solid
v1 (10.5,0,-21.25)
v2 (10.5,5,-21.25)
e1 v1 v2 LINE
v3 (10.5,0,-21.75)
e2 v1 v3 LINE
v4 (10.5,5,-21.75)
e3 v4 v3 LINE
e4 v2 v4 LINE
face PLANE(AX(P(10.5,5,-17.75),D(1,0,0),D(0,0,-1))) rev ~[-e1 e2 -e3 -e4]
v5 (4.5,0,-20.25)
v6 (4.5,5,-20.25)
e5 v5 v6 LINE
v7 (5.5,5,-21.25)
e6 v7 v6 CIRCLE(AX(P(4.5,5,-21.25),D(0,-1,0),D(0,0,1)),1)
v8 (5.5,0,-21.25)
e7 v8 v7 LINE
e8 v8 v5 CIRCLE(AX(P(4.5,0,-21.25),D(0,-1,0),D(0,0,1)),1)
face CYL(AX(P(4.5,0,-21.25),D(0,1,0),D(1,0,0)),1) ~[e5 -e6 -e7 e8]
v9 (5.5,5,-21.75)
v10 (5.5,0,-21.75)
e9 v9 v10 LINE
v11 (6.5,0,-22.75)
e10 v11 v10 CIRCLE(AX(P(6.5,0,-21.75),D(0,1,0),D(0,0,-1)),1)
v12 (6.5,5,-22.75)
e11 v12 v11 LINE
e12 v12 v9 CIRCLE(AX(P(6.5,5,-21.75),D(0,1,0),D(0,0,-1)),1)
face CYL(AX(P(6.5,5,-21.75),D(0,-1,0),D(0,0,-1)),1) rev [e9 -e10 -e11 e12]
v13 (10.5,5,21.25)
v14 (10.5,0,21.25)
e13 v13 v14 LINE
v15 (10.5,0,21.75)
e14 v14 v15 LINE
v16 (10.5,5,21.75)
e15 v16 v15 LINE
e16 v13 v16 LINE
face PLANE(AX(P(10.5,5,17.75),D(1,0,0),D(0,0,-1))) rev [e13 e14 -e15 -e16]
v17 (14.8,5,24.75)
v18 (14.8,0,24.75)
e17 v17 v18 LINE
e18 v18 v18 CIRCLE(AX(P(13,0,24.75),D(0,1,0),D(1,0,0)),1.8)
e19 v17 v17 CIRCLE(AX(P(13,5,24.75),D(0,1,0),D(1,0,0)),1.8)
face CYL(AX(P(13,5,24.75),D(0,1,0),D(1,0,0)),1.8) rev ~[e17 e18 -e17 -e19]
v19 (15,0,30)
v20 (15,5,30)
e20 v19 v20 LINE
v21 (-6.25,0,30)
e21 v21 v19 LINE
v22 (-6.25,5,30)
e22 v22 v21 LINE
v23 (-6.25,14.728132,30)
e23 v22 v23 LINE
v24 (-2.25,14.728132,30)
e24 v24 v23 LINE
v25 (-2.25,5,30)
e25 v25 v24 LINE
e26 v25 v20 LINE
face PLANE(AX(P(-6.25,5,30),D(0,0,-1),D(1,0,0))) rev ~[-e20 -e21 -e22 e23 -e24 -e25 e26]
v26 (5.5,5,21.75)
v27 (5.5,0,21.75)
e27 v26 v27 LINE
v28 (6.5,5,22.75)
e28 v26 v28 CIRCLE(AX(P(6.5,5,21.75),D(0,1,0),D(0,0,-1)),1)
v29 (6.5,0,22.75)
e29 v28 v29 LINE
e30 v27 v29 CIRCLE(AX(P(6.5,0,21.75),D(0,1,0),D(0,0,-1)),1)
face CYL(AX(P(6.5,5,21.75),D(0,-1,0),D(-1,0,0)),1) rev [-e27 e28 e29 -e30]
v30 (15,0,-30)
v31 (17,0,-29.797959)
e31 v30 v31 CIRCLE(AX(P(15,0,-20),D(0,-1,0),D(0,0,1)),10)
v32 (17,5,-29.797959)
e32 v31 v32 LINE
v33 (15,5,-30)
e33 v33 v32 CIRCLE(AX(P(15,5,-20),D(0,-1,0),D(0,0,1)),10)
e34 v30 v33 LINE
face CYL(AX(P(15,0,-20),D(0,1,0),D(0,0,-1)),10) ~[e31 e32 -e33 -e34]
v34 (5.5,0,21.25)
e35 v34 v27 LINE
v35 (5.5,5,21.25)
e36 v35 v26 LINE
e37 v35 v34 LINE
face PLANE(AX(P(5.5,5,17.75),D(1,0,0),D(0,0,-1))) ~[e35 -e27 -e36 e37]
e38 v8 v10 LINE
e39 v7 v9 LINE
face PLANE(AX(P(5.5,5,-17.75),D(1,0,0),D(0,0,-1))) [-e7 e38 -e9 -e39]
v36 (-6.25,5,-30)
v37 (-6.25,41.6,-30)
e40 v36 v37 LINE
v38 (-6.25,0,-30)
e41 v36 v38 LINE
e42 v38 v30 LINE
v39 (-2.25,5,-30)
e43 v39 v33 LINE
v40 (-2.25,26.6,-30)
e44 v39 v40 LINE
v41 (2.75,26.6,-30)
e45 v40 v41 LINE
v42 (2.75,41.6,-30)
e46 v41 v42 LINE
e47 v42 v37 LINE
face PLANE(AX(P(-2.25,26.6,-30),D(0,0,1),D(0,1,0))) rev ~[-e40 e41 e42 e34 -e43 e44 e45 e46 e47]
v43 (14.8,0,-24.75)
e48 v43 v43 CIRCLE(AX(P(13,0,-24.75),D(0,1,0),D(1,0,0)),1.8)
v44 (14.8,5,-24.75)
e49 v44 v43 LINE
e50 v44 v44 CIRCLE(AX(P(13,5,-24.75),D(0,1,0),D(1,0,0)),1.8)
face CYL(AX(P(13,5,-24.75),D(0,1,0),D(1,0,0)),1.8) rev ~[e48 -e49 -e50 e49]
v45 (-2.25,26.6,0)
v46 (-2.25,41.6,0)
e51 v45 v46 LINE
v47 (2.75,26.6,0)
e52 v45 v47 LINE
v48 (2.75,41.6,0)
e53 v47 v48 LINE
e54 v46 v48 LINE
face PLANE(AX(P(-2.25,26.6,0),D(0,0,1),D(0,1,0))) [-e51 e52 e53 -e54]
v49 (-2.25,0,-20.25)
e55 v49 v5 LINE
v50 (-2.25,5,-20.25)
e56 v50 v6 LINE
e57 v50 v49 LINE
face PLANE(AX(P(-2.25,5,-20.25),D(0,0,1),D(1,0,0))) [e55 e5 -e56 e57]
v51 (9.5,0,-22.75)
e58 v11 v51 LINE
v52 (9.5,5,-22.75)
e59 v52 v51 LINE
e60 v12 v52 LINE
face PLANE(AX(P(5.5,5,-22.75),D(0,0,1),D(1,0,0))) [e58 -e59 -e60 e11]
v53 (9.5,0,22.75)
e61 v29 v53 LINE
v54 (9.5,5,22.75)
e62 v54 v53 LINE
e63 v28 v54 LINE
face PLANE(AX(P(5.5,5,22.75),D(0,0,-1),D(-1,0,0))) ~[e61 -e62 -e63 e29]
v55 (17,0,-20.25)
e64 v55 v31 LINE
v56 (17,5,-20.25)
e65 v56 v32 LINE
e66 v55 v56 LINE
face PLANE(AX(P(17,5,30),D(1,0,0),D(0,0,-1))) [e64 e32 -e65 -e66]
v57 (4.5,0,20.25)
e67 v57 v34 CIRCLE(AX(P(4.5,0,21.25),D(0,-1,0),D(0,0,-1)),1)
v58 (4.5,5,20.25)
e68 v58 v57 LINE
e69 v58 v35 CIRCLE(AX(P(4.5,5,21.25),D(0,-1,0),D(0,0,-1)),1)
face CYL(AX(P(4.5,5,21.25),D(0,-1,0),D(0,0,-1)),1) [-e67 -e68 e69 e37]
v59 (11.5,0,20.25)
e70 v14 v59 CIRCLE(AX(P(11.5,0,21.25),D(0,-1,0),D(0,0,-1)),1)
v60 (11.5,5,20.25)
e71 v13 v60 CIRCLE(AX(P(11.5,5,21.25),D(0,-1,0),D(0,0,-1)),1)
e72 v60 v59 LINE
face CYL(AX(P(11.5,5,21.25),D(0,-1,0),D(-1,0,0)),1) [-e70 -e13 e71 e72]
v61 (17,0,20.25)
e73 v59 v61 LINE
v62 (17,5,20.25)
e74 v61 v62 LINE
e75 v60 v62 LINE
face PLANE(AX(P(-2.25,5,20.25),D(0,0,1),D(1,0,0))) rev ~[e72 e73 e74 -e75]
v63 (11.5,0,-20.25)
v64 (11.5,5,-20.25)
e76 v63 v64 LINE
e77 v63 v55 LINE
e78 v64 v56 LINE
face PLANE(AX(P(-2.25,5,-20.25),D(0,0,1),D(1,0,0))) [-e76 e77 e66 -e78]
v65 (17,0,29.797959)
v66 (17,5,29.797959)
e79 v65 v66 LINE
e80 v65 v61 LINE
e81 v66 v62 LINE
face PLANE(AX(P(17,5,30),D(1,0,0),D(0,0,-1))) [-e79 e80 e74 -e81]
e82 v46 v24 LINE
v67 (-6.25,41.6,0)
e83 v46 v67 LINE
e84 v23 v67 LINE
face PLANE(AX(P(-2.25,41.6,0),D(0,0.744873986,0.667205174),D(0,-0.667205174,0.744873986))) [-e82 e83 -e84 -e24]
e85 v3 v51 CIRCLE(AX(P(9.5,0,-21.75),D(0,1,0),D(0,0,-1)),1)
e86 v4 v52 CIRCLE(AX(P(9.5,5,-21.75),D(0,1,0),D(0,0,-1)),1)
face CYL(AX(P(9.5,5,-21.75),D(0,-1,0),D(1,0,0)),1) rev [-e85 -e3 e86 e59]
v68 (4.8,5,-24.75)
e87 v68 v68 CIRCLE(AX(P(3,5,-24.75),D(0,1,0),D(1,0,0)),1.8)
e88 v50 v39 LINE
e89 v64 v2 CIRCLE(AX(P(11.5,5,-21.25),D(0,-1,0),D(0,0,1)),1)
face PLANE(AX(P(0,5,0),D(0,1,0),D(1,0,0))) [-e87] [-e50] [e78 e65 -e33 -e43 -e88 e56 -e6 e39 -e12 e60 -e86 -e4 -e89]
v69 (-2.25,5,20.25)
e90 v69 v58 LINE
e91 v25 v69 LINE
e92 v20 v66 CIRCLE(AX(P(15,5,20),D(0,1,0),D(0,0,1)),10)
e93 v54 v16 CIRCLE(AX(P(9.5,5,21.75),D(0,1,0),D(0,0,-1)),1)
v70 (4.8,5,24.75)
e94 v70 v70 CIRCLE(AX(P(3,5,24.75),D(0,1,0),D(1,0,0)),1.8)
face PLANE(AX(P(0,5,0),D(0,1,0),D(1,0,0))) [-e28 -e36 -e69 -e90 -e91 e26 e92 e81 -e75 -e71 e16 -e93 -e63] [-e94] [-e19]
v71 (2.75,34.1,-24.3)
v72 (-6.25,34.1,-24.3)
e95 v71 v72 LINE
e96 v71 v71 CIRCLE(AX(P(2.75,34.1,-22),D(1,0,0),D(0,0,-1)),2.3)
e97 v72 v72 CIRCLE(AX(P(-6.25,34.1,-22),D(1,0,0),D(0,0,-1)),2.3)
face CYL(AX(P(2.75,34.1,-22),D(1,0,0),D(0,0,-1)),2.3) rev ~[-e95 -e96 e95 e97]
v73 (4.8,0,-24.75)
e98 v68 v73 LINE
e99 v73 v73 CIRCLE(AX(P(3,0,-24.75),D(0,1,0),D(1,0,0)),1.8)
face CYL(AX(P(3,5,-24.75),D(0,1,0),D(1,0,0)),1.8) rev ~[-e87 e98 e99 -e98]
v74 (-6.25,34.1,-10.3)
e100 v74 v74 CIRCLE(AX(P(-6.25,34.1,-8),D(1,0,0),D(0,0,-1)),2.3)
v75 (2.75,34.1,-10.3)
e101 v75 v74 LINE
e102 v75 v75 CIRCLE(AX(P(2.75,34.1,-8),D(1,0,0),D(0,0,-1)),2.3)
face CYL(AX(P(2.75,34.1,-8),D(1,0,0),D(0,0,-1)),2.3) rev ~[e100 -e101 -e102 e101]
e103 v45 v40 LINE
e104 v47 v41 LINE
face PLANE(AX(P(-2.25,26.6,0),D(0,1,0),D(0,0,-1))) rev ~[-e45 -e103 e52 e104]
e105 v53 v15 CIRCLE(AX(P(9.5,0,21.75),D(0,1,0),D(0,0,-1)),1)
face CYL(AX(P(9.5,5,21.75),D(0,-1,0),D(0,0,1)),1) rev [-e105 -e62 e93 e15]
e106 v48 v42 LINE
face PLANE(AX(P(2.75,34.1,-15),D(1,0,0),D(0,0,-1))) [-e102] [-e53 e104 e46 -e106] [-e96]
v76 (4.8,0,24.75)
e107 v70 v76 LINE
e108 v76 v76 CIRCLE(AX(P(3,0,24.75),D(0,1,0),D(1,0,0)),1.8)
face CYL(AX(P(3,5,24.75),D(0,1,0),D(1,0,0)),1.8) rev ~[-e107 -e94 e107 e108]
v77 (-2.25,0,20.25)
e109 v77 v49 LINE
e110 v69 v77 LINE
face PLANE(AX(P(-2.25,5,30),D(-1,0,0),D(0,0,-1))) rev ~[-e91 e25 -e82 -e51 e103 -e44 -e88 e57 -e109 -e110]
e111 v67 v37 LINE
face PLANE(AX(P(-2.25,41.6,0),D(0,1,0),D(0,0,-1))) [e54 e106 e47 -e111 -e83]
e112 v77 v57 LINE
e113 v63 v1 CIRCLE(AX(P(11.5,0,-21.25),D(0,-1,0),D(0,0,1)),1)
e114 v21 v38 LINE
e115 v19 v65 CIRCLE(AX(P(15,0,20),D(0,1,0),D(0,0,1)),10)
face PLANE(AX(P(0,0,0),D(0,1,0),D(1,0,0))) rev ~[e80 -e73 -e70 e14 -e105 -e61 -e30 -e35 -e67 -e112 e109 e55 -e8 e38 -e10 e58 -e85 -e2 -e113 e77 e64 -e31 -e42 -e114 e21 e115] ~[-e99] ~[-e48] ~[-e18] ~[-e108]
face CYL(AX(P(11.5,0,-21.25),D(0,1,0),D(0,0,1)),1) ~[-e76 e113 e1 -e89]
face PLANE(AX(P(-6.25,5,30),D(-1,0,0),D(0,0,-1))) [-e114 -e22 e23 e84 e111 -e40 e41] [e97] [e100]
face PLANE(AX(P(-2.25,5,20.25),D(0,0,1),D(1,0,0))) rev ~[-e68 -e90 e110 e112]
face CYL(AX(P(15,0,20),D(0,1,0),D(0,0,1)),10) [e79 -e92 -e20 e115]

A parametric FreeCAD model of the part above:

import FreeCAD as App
import Part
import Sketcher
from FreeCAD import Vector
Q = App.Units.Quantity


def edges_at(feature, points):
    """Names of the edges that pass closest to the given points."""
    edges = feature.Shape.Edges
    near = lambda p: min(range(len(edges)), key=lambda i: edges[i].distToShape(Part.Vertex(*p))[0])
    return sorted({f"Edge{near(p) + 1}" for p in points})


def add_polygon(sketch, points):
    """Adds a closed chain of lines whose ends are joined by coincident constraints."""
    first, n = sketch.GeometryCount, len(points)
    for a, b in zip(points, points[1:] + points[:1]):
        sketch.addGeometry(Part.LineSegment(App.Vector(*a, 0), App.Vector(*b, 0)), False)
    for i in range(n):
        sketch.addConstraint(Sketcher.Constraint("Coincident", first + i, 2, first + (i + 1) % n, 1))

doc = App.newDocument("Part")
body = doc.addObject("PartDesign::Body", "Body")

sketch1 = body.newObject("Sketcher::SketchObject", "Sketch")
sketch1.AttachmentSupport = (doc.getObject("XZ_Plane"), [""])
sketch1.MapMode = "FlatFace"
add_polygon(sketch1, [(-25, -30), (-25, 30), (25, 30), (25, -30)])
sketch1.addConstraint([
    Sketcher.Constraint("Vertical", 0),
    Sketcher.Constraint("Horizontal", 1),
    Sketcher.Constraint("Vertical", 2),
    Sketcher.Constraint("Horizontal", 3),
    Sketcher.Constraint("Symmetric", 0, 2, 2, 2, -1, 1),
    Sketcher.Constraint("DistanceX", 1, 1, 1, 2, Q("50 mm")),
    Sketcher.Constraint("DistanceY", 0, 1, 0, 2, Q("60 mm")),
])
pad1 = body.newObject("PartDesign::Pad", "Pad")
pad1.Profile = sketch1
pad1.Length = 5
pad1.Reversed = True

sketch2 = body.newObject("Sketcher::SketchObject", "Sketch001")
sketch2.AttachmentSupport = (doc.getObject("XZ_Plane"), [""])
sketch2.MapMode = "FlatFace"
sketch2.AttachmentOffset = App.Placement(Vector(0, 0, -5), App.Rotation())
add_polygon(sketch2, [(-2, -20), (-2, 20), (18, 20), (18, -20)])
sketch2.addConstraint([
    Sketcher.Constraint("Vertical", 0),
    Sketcher.Constraint("Horizontal", 1),
    Sketcher.Constraint("Vertical", 2),
    Sketcher.Constraint("Horizontal", 3),
    Sketcher.Constraint("DistanceX", 1, 1, 1, 2, Q("20.5 mm")),
    Sketcher.Constraint("DistanceY", 0, 1, 0, 2, Q("40.5 mm")),
    Sketcher.Constraint("DistanceX", 0, 2, -1, 1, Q("2.25 mm")),
    Sketcher.Constraint("DistanceY", -1, 1, 0, 2, Q("20.25 mm")),
])
pocket1 = body.newObject("PartDesign::Pocket", "Pocket")
pocket1.Profile = sketch2
pocket1.Length = 5
pocket1.Reversed = True

sketch3 = body.newObject("Sketcher::SketchObject", "Sketch002")
sketch3.AttachmentSupport = (doc.getObject("XZ_Plane"), [""])
sketch3.MapMode = "FlatFace"
sketch3.AttachmentOffset = App.Placement(Vector(0, 0, -5), App.Rotation())
sketch3.addGeometry([
    Part.Circle(Vector(3, -24.8, 0), Vector(0, 0, 1), 1.8),
    Part.Circle(Vector(13, -24.8, 0), Vector(0, 0, 1), 1.8),
    Part.Circle(Vector(13, 24.8, 0), Vector(0, 0, 1), 1.8),
    Part.Circle(Vector(3, 24.8, 0), Vector(0, 0, 1), 1.8),
], False)
sketch3.addConstraint([
    Sketcher.Constraint("Equal", 0, 1),
    Sketcher.Constraint("Equal", 1, 2),
    Sketcher.Constraint("Equal", 2, 3),
    Sketcher.Constraint("Symmetric", 1, 3, 2, 3, -1),
    Sketcher.Constraint("Symmetric", 0, 3, 3, 3, -1),
    Sketcher.Constraint("Horizontal", 0, 3, 1, 3),
    Sketcher.Constraint("Diameter", 0, Q("3.6 mm")),
    Sketcher.Constraint("DistanceX", -1, 1, 0, 3, Q("3 mm")),
    Sketcher.Constraint("DistanceX", -1, 1, 1, 3, Q("13 mm")),
    Sketcher.Constraint("DistanceY", 1, 3, 2, 3, Q("49.5 mm")),
])
pocket2 = body.newObject("PartDesign::Pocket", "Pocket001")
pocket2.Profile = sketch3
pocket2.Length = 5
pocket2.Reversed = True

sketch4 = body.newObject("Sketcher::SketchObject", "Sketch003")
sketch4.AttachmentSupport = (doc.getObject("XZ_Plane"), [""])
sketch4.MapMode = "FlatFace"
sketch4.AttachmentOffset = App.Placement(Vector(0, 0, -5), App.Rotation())
sketch4.addGeometry([
    Part.Circle(Vector(-17.5, -20, 0), Vector(0, 0, 1), 2.5),
    Part.Circle(Vector(-17.5, 20, 0), Vector(0, 0, 1), 2.5),
], False)
sketch4.addConstraint([
    Sketcher.Constraint("Equal", 0, 1),
    Sketcher.Constraint("Symmetric", 0, 3, 1, 3, -1),
    Sketcher.Constraint("Diameter", 0, Q("5 mm")),
    Sketcher.Constraint("DistanceY", 0, 3, -1, 1, Q("20 mm")),
    Sketcher.Constraint("DistanceX", 0, 3, -1, 1, Q("17.5 mm")),
])
pocket3 = body.newObject("PartDesign::Pocket", "Pocket002")
pocket3.Profile = sketch4
pocket3.Length = 5
pocket3.Reversed = True
doc.recompute()

fillet = body.newObject("PartDesign::Fillet", "Fillet")
fillet.Base = (pocket3, edges_at(pocket3, [
    (-25, 2.5, -30),
    (25, 2.5, -30),
    (25, 2.5, 30),
    (-25, 2.5, 30),
]))
fillet.Radius = 10

sketch5 = body.newObject("Sketcher::SketchObject", "Sketch004")
sketch5.AttachmentSupport = (doc.getObject("XZ_Plane"), [""])
sketch5.MapMode = "FlatFace"
sketch5.AttachmentOffset = App.Placement(Vector(0, 0, -5), App.Rotation())
add_polygon(sketch5, [(6, -23), (6, -18), (10, -18), (10, -23)])
sketch5.addConstraint([
    Sketcher.Constraint("Vertical", 0),
    Sketcher.Constraint("Horizontal", 1),
    Sketcher.Constraint("Vertical", 2),
    Sketcher.Constraint("Horizontal", 3),
    Sketcher.Constraint("Equal", 3, 0),
    Sketcher.Constraint("DistanceX", 1, 1, 1, 2, Q("5 mm")),
    Sketcher.Constraint("DistanceX", -1, 1, 0, 2, Q("5.5 mm")),
    Sketcher.Constraint("DistanceY", 0, 2, -1, 1, Q("17.75 mm")),
])
pocket4 = body.newObject("PartDesign::Pocket", "Pocket003")
pocket4.Profile = sketch5
pocket4.Length = 10
pocket4.Reversed = True
doc.recompute()

mirrored = body.newObject("PartDesign::Mirrored", "Mirrored")
mirrored.Originals = [pocket4]
mirrored.MirrorPlane = (doc.getObject("XY_Plane"), [""])
body.Tip = mirrored
doc.recompute()

fillet2 = body.newObject("PartDesign::Fillet", "Fillet001")
fillet2.Base = (mirrored, edges_at(mirrored, [
    (10.5, 2.5, 20.25),
    (5.5, 2.5, 20.25),
    (10.5, 2.5, 22.75),
    (5.5, 2.5, 22.75),
    (10.5, 2.5, -20.25),
    (5.5, 2.5, -20.25),
    (5.5, 2.5, -22.75),
    (10.5, 2.5, -22.75),
]))
fillet2.Radius = 1

sketch6 = body.newObject("Sketcher::SketchObject", "Sketch005")
sketch6.AttachmentSupport = (doc.getObject("XZ_Plane"), [""])
sketch6.MapMode = "FlatFace"
sketch6.AttachmentOffset = App.Placement(Vector(0, 0, -5), App.Rotation())
add_polygon(sketch6, [(17, -30), (17, 30), (35, 30), (35, -30)])
sketch6.addConstraint([
    Sketcher.Constraint("Vertical", 0),
    Sketcher.Constraint("Horizontal", 1),
    Sketcher.Constraint("Vertical", 2),
    Sketcher.Constraint("Horizontal", 3),
    Sketcher.Constraint("DistanceY", 0, 1, 0, 2, Q("60 mm")),
    Sketcher.Constraint("DistanceX", -1, 1, 0, 2, Q("17 mm")),
    Sketcher.Constraint("DistanceY", -1, 1, 0, 2, Q("30 mm")),
    Sketcher.Constraint("DistanceX", 1, 1, 1, 2, Q("17.943789 mm")),
])
pocket5 = body.newObject("PartDesign::Pocket", "Pocket004")
pocket5.Profile = sketch6
pocket5.Length = 10
pocket5.Reversed = True

sketch7 = body.newObject("Sketcher::SketchObject", "Sketch006")
sketch7.AttachmentSupport = (doc.getObject("XZ_Plane"), [""])
sketch7.MapMode = "FlatFace"
sketch7.AttachmentOffset = App.Placement(Vector(0, 0, -5), App.Rotation())
add_polygon(sketch7, [(-6.2, -30), (-6.2, 30), (-2.2, 30), (-2.2, -30)])
sketch7.addConstraint([
    Sketcher.Constraint("Vertical", 0),
    Sketcher.Constraint("Horizontal", 1),
    Sketcher.Constraint("Vertical", 2),
    Sketcher.Constraint("Horizontal", 3),
    Sketcher.Constraint("DistanceX", 1, 1, 1, 2, Q("4 mm")),
    Sketcher.Constraint("DistanceY", 0, 1, 0, 2, Q("60 mm")),
    Sketcher.Constraint("DistanceY", -1, 1, 0, 2, Q("30 mm")),
    Sketcher.Constraint("DistanceX", 0, 2, -1, 1, Q("6.25 mm")),
])
pad2 = body.newObject("PartDesign::Pad", "Pad001")
pad2.Profile = sketch7
pad2.Length = 36.6
pad2.Reversed = True

sketch8 = body.newObject("Sketcher::SketchObject", "Sketch007")
sketch8.AttachmentSupport = (doc.getObject("XZ_Plane"), [""])
sketch8.MapMode = "FlatFace"
sketch8.AttachmentOffset = App.Placement(Vector(0, 0, -5), App.Rotation())
add_polygon(sketch8, [(-28, -40), (-28, 30), (-6, 30), (-6, -40)])
sketch8.addConstraint([
    Sketcher.Constraint("Vertical", 0),
    Sketcher.Constraint("Horizontal", 1),
    Sketcher.Constraint("Vertical", 2),
    Sketcher.Constraint("Horizontal", 3),
    Sketcher.Constraint("DistanceY", -1, 1, 0, 2, Q("30 mm")),
    Sketcher.Constraint("DistanceX", 1, 2, -1, 1, Q("6.25 mm")),
    Sketcher.Constraint("DistanceY", 0, 1, 0, 2, Q("69.948881 mm")),
    Sketcher.Constraint("DistanceX", 1, 1, 1, 2, Q("21.864928 mm")),
])
pocket6 = body.newObject("PartDesign::Pocket", "Pocket005")
pocket6.Profile = sketch8
pocket6.Length = 24
pocket6.Reversed = True

sketch9 = body.newObject("Sketcher::SketchObject", "Sketch008")
sketch9.AttachmentSupport = (doc.getObject("YZ_Plane"), [""])
sketch9.MapMode = "FlatFace"
sketch9.AttachmentOffset = App.Placement(Vector(0, 0, -2.25), App.Rotation())
add_polygon(sketch9, [(42, 0), (27, 0), (27, -30), (42, -30)])
sketch9.addConstraint([
    Sketcher.Constraint("Horizontal", 0),
    Sketcher.Constraint("Vertical", 1),
    Sketcher.Constraint("Horizontal", 2),
    Sketcher.Constraint("Vertical", 3),
    Sketcher.Constraint("PointOnObject", 0, 2, -1),
    Sketcher.Constraint("DistanceX", 0, 2, 0, 1, Q("15 mm")),
    Sketcher.Constraint("DistanceY", 1, 2, 1, 1, Q("30 mm")),
    Sketcher.Constraint("DistanceX", -1, 1, 0, 2, Q("26.6 mm")),
])
pad3 = body.newObject("PartDesign::Pad", "Pad002")
pad3.Profile = sketch9
pad3.Length = 5

sketch10 = body.newObject("Sketcher::SketchObject", "Sketch009")
sketch10.AttachmentSupport = (doc.getObject("YZ_Plane"), [""])
sketch10.MapMode = "FlatFace"
sketch10.AttachmentOffset = App.Placement(Vector(0, 0, -2.25), App.Rotation())
add_polygon(sketch10, [(15, 30), (42, 0), (42, 30)])
sketch10.addConstraint([
    Sketcher.Constraint("Vertical", 1),
    Sketcher.Constraint("Horizontal", 2),
    Sketcher.Constraint("PointOnObject", 0, 2, -1),
    Sketcher.Constraint("DistanceY", 1, 1, 1, 2, Q("30 mm")),
    Sketcher.Constraint("DistanceX", -1, 1, 0, 2, Q("41.6 mm")),
    Sketcher.Constraint("Distance", 0, Q("40.275269 mm")),
])
pocket7 = body.newObject("PartDesign::Pocket", "Pocket006")
pocket7.Profile = sketch10
pocket7.Length = 5

sketch11 = body.newObject("Sketcher::SketchObject", "Sketch010")
sketch11.AttachmentSupport = (doc.getObject("YZ_Plane"), [""])
sketch11.MapMode = "FlatFace"
sketch11.AttachmentOffset = App.Placement(Vector(0, 0, 2.75), App.Rotation())
sketch11.addGeometry([
    Part.Circle(Vector(34.1, -8, 0), Vector(0, 0, 1), 2.3),
    Part.Circle(Vector(34.1, -22, 0), Vector(0, 0, 1), 2.3),
], False)
sketch11.addConstraint([
    Sketcher.Constraint("Equal", 0, 1),
    Sketcher.Constraint("Vertical", 0, 3, 1, 3),
    Sketcher.Constraint("Diameter", 0, Q("4.6 mm")),
    Sketcher.Constraint("DistanceY", 0, 3, -1, 1, Q("8 mm")),
    Sketcher.Constraint("DistanceY", 1, 3, -1, 1, Q("22 mm")),
    Sketcher.Constraint("DistanceX", -1, 1, 0, 3, Q("34.1 mm")),
])
pocket8 = body.newObject("PartDesign::Pocket", "Pocket007")
pocket8.Profile = sketch11
pocket8.Length = 13

doc.recompute()
